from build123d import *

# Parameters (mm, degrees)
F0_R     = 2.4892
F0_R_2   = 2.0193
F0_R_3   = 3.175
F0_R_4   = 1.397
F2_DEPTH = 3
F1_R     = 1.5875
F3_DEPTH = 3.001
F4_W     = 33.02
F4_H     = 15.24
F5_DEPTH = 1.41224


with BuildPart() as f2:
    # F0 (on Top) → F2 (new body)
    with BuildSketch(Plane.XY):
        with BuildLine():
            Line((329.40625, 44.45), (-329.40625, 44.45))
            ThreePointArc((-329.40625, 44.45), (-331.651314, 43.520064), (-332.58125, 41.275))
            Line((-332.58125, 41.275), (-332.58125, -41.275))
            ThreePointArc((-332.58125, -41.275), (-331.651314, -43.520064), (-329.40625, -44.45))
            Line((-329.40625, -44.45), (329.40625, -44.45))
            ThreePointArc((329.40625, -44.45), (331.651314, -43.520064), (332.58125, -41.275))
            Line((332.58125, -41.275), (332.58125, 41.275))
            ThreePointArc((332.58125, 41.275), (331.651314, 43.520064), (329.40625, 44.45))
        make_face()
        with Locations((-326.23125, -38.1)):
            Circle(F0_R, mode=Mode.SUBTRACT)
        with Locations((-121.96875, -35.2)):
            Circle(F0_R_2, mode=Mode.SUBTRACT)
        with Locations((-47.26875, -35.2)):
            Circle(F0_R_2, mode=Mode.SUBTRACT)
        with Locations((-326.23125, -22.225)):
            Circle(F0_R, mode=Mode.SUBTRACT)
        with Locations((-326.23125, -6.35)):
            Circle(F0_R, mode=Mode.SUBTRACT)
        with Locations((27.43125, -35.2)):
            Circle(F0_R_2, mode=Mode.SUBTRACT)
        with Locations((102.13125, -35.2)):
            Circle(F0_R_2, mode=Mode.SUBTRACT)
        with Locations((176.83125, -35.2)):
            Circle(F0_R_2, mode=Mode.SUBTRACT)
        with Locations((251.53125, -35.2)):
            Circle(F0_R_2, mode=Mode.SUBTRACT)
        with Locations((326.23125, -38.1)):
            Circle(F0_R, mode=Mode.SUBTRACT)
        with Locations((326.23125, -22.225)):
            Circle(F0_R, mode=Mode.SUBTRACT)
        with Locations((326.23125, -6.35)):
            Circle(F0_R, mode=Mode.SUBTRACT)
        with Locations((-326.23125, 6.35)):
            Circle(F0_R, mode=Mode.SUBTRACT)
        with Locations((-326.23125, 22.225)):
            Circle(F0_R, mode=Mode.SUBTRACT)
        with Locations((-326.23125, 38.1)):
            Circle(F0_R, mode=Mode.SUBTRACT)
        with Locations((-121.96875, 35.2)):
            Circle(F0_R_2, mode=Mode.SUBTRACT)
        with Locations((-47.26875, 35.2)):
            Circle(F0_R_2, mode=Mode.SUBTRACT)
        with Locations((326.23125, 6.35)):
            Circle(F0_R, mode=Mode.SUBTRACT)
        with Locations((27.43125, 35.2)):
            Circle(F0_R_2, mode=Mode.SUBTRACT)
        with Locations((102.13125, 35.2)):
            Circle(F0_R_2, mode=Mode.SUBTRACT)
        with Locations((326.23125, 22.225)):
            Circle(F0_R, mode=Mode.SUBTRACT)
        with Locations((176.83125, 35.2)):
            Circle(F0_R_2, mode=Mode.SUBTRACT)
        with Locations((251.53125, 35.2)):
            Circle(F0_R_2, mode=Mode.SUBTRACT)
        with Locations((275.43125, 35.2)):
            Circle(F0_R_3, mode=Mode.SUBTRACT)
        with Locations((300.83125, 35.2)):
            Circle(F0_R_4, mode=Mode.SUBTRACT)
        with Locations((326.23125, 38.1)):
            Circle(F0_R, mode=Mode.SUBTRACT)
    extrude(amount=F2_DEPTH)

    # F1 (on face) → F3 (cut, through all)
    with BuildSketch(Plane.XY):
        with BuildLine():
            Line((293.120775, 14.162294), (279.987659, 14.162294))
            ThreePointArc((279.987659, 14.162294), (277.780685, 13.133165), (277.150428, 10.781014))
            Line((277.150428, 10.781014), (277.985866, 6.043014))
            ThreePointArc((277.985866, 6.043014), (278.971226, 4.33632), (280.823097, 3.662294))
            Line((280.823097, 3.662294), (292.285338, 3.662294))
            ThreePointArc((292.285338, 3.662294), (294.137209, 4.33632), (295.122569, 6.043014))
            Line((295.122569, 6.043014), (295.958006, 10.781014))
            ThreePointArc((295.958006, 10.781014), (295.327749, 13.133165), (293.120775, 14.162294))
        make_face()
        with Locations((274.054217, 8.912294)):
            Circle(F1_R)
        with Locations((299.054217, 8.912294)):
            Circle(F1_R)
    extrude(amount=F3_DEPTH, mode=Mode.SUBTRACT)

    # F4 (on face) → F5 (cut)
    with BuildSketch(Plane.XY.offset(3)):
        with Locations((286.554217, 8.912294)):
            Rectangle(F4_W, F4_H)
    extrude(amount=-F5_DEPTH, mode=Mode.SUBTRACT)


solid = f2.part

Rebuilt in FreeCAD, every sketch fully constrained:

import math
import FreeCAD as App
import Part
import Sketcher
from FreeCAD import Vector
Q = App.Units.Quantity


def add_polygon(sketch, points):
    """Adds a closed chain of lines whose ends are joined by coincident constraints."""
    first, n = sketch.GeometryCount, len(points)
    for a, b in zip(points, points[1:] + points[:1]):
        sketch.addGeometry(Part.LineSegment(App.Vector(*a, 0), App.Vector(*b, 0)), False)
    for i in range(n):
        sketch.addConstraint(Sketcher.Constraint("Coincident", first + i, 2, first + (i + 1) % n, 1))

doc = App.newDocument("Part")
params = doc.addObject("Spreadsheet::Sheet", "Params")
for row, (alias, value) in enumerate([
    ("sketch1_diameter", "0.25 in"),
    ("sketch1_diameter2", "0.11 in"),
    ("sketch1_diameter3", "0.196 in"),
    ("sketch1_diameter4", "0.159 in"),
    ("sketch1_height", "3.25 in"),
    ("pad1_length", "3 mm"),
    ("sketch2_diameter", "0.125 in"),
    ("sketch3_width", "1.3 in"),
    ("sketch3_height", "0.6 in"),
    ("pocket2_length", "0.0556 in"),
], start=1):
    params.set(f"A{row}", alias)
    params.set(f"B{row}", "=" + value)
    params.setAlias(f"B{row}", alias)

body = doc.addObject("PartDesign::Body", "Body")

# Sketch on XY plane
sketch1 = body.newObject("Sketcher::SketchObject", "Sketch")
sketch1.AttachmentSupport = (doc.getObject("XY_Plane"), [""])
sketch1.MapMode = "FlatFace"
sketch1.addGeometry([
    Part.LineSegment(Vector(329.4, 44.5, 0), Vector(-329.4, 44.5, 0)),  # 0
    Part.ArcOfCircle(Part.Circle(Vector(-329.4, 41.3, 0), Vector(0, 0, 1), 3.2), math.radians(90), math.radians(180)),  # 1
    Part.LineSegment(Vector(-332.6, 41.3, 0), Vector(-332.6, -41.3, 0)),  # 2
    Part.ArcOfCircle(Part.Circle(Vector(-329.4, -41.3, 0), Vector(0, 0, 1), 3.2), math.radians(-180), math.radians(-90)),  # 3
    Part.LineSegment(Vector(-329.4, -44.5, 0), Vector(329.4, -44.5, 0)),  # 4
    Part.ArcOfCircle(Part.Circle(Vector(329.4, -41.3, 0), Vector(0, 0, 1), 3.2), math.radians(-90), math.radians(0)),  # 5
    Part.LineSegment(Vector(332.6, -41.3, 0), Vector(332.6, 41.3, 0)),  # 6
    Part.ArcOfCircle(Part.Circle(Vector(329.4, 41.3, 0), Vector(0, 0, 1), 3.2), math.radians(0), math.radians(90)),  # 7
    Part.Circle(Vector(-326.2, -38.1, 0), Vector(0, 0, 1), 2.5),  # 8
    Part.Circle(Vector(-326.2, -22.2, 0), Vector(0, 0, 1), 2.5),  # 9
    Part.Circle(Vector(-122, -35.2, 0), Vector(0, 0, 1), 2),  # 10
    Part.Circle(Vector(-47.3, -35.2, 0), Vector(0, 0, 1), 2),  # 11
    Part.Circle(Vector(-326.2, -6.3, 0), Vector(0, 0, 1), 2.5),  # 12
    Part.Circle(Vector(27.4, -35.2, 0), Vector(0, 0, 1), 2),  # 13
    Part.Circle(Vector(102.1, -35.2, 0), Vector(0, 0, 1), 2),  # 14
    Part.Circle(Vector(176.8, -35.2, 0), Vector(0, 0, 1), 2),  # 15
    Part.Circle(Vector(326.2, -38.1, 0), Vector(0, 0, 1), 2.5),  # 16
    Part.Circle(Vector(251.5, -35.2, 0), Vector(0, 0, 1), 2),  # 17
    Part.Circle(Vector(326.2, -22.2, 0), Vector(0, 0, 1), 2.5),  # 18
    Part.Circle(Vector(326.2, -6.3, 0), Vector(0, 0, 1), 2.5),  # 19
    Part.Circle(Vector(-326.2, 6.3, 0), Vector(0, 0, 1), 2.5),  # 20
    Part.Circle(Vector(-326.2, 22.2, 0), Vector(0, 0, 1), 2.5),  # 21
    Part.Circle(Vector(-326.2, 38.1, 0), Vector(0, 0, 1), 2.5),  # 22
    Part.Circle(Vector(-122, 35.2, 0), Vector(0, 0, 1), 2),  # 23
    Part.Circle(Vector(-47.3, 35.2, 0), Vector(0, 0, 1), 2),  # 24
    Part.Circle(Vector(326.2, 6.3, 0), Vector(0, 0, 1), 2.5),  # 25
    Part.Circle(Vector(27.4, 35.2, 0), Vector(0, 0, 1), 2),  # 26
    Part.Circle(Vector(102.1, 35.2, 0), Vector(0, 0, 1), 2),  # 27
    Part.Circle(Vector(326.2, 22.2, 0), Vector(0, 0, 1), 2.5),  # 28
    Part.Circle(Vector(176.8, 35.2, 0), Vector(0, 0, 1), 2),  # 29
    Part.Circle(Vector(251.5, 35.2, 0), Vector(0, 0, 1), 2),  # 30
    Part.Circle(Vector(275.4, 35.2, 0), Vector(0, 0, 1), 3.2),  # 31
    Part.Circle(Vector(300.8, 35.2, 0), Vector(0, 0, 1), 1.4),  # 32
    Part.Circle(Vector(326.2, 38.1, 0), Vector(0, 0, 1), 2.5),  # 33
], False)
sketch1.addConstraint([
    Sketcher.Constraint("Tangent", 0, 2, 1, 1),
    Sketcher.Constraint("Tangent", 1, 2, 2, 1),
    Sketcher.Constraint("Tangent", 2, 2, 3, 1),
    Sketcher.Constraint("Tangent", 3, 2, 4, 1),
    Sketcher.Constraint("Tangent", 4, 2, 5, 1),
    Sketcher.Constraint("Tangent", 5, 2, 6, 1),
    Sketcher.Constraint("Tangent", 6, 2, 7, 1),
    Sketcher.Constraint("Tangent", 7, 2, 0, 1),
    Sketcher.Constraint("Horizontal", 0),
    Sketcher.Constraint("Vertical", 2),
    Sketcher.Constraint("Horizontal", 4),
    Sketcher.Constraint("Vertical", 6),
    Sketcher.Constraint("Equal", 1, 3),
    Sketcher.Constraint("Equal", 3, 5),
    Sketcher.Constraint("Equal", 5, 7),
    Sketcher.Constraint("Equal", 8, 9),
    Sketcher.Constraint("Equal", 10, 11),
    Sketcher.Constraint("Equal", 9, 12),
    Sketcher.Constraint("Equal", 11, 13),
    Sketcher.Constraint("Equal", 13, 14),
    Sketcher.Constraint("Equal", 14, 15),
    Sketcher.Constraint("Equal", 12, 16),
    Sketcher.Constraint("Equal", 15, 17),
    Sketcher.Constraint("Equal", 16, 18),
    Sketcher.Constraint("Equal", 18, 19),
    Sketcher.Constraint("Equal", 19, 20),
    Sketcher.Constraint("Equal", 20, 21),
    Sketcher.Constraint("Equal", 21, 22),
    Sketcher.Constraint("Equal", 17, 23),
    Sketcher.Constraint("Equal", 23, 24),
    Sketcher.Constraint("Equal", 22, 25),
    Sketcher.Constraint("Equal", 24, 26),
    Sketcher.Constraint("Equal", 26, 27),
    Sketcher.Constraint("Equal", 25, 28),
    Sketcher.Constraint("Equal", 27, 29),
    Sketcher.Constraint("Equal", 29, 30),
    Sketcher.Constraint("Equal", 7, 31),
    Sketcher.Constraint("Equal", 28, 33),
    Sketcher.Constraint("Symmetric", 1, 3, 5, 3, -1, 1),
    Sketcher.Constraint("Symmetric", 19, 3, 20, 3, -1, 1),
    Sketcher.Constraint("Symmetric", 18, 3, 21, 3, -1, 1),
    Sketcher.Constraint("Symmetric", 16, 3, 22, 3, -1, 1),
    Sketcher.Constraint("Symmetric", 12, 3, 25, 3, -1, 1),
    Sketcher.Constraint("Symmetric", 9, 3, 28, 3, -1, 1),
    Sketcher.Constraint("Symmetric", 8, 3, 33, 3, -1, 1),
    Sketcher.Constraint("Symmetric", 8, 3, 16, 3, -2),
    Sketcher.Constraint("Symmetric", 9, 3, 18, 3, -2),
    Sketcher.Constraint("Symmetric", 12, 3, 19, 3, -2),
    Sketcher.Constraint("Symmetric", 10, 3, 23, 3, -1),
    Sketcher.Constraint("Symmetric", 11, 3, 24, 3, -1),
    Sketcher.Constraint("Symmetric", 13, 3, 26, 3, -1),
    Sketcher.Constraint("Symmetric", 14, 3, 27, 3, -1),
    Sketcher.Constraint("Symmetric", 15, 3, 29, 3, -1),
    Sketcher.Constraint("Symmetric", 17, 3, 30, 3, -1),
    Sketcher.Constraint("Horizontal", 10, 3, 11, 3),
    Sketcher.Constraint("Horizontal", 11, 3, 13, 3),
    Sketcher.Constraint("Horizontal", 13, 3, 14, 3),
    Sketcher.Constraint("Horizontal", 14, 3, 15, 3),
    Sketcher.Constraint("Horizontal", 15, 3, 17, 3),
    Sketcher.Constraint("Horizontal", 30, 3, 31, 3),
    Sketcher.Constraint("Horizontal", 31, 3, 32, 3),
    Sketcher.Constraint("Vertical", 8, 3, 9, 3),
    Sketcher.Constraint("Vertical", 9, 3, 12, 3),
    Sketcher.Constraint("Diameter", 31, Q("0.25 in")),
    Sketcher.Constraint("Diameter", 32, Q("0.11 in")),
    Sketcher.Constraint("Diameter", 8, Q("0.196 in")),
    Sketcher.Constraint("Diameter", 10, Q("0.159 in")),
    Sketcher.Constraint("DistanceX", 31, 3, 28, 3, Q("2 in")),
    Sketcher.Constraint("DistanceX", 31, 3, 32, 3, Q("1 in")),
    Sketcher.Constraint("DistanceY", 12, 3, 0, 2, Q("2 in")),
    Sketcher.Constraint("DistanceY", 2, 2, 2, 1, Q("3.25 in")),
    Sketcher.Constraint("DistanceY", 8, 3, -1, 1, Q("1.5 in")),
    Sketcher.Constraint("DistanceY", 9, 3, 1, 3, Q("2.5 in")),
    Sketcher.Constraint("DistanceX", 0, 2, 0, 1, Q("25.9375 in")),
    Sketcher.Constraint("DistanceX", 1, 2, 22, 3, Q("0.25 in")),
    Sketcher.Constraint("DistanceY", 10, 3, -1, 1, 35.2),
    Sketcher.Constraint("DistanceX", 8, 3, 10, 3, 204.2625),
    Sketcher.Constraint("DistanceX", 10, 3, 11, 3, 74.7),
    Sketcher.Constraint("DistanceX", 11, 3, 13, 3, 74.7),
    Sketcher.Constraint("DistanceX", 13, 3, 14, 3, 74.7),
    Sketcher.Constraint("DistanceX", 14, 3, 15, 3, 74.7),
    Sketcher.Constraint("DistanceX", 15, 3, 17, 3, 74.7),
])
sketch1.setExpression("Constraints[63]", "Params.sketch1_diameter")
sketch1.setExpression("Constraints[64]", "Params.sketch1_diameter2")
sketch1.setExpression("Constraints[65]", "Params.sketch1_diameter3")
sketch1.setExpression("Constraints[66]", "Params.sketch1_diameter4")
sketch1.setExpression("Constraints[70]", "Params.sketch1_height")
pad1 = body.newObject("PartDesign::Pad", "Pad")
pad1.Profile = sketch1
pad1.setExpression("Length", "Params.pad1_length")

# Sketch on XY plane
sketch2 = body.newObject("Sketcher::SketchObject", "Sketch001")
sketch2.AttachmentSupport = (doc.getObject("XY_Plane"), [""])
sketch2.MapMode = "FlatFace"
sketch2.addGeometry([
    Part.LineSegment(Vector(293.1, 14.2, 0), Vector(280, 14.2, 0)),  # 0
    Part.ArcOfCircle(Part.Circle(Vector(280, 11.3, 0), Vector(0, 0, 1), 2.9), math.radians(90), math.radians(190)),  # 1
    Part.LineSegment(Vector(277.2, 10.8, 0), Vector(278, 6, 0)),  # 2
    Part.ArcOfCircle(Part.Circle(Vector(280.8, 6.5, 0), Vector(0, 0, 1), 2.9), math.radians(-170), math.radians(-90)),  # 3
    Part.LineSegment(Vector(280.8, 3.7, 0), Vector(292.3, 3.7, 0)),  # 4
    Part.ArcOfCircle(Part.Circle(Vector(292.3, 6.5, 0), Vector(0, 0, 1), 2.9), math.radians(-90), math.radians(-10)),  # 5
    Part.LineSegment(Vector(295.1, 6, 0), Vector(296, 10.8, 0)),  # 6
    Part.ArcOfCircle(Part.Circle(Vector(293.1, 11.3, 0), Vector(0, 0, 1), 2.9), math.radians(-10), math.radians(90)),  # 7
    Part.Circle(Vector(274.1, 8.9, 0), Vector(0, 0, 1), 1.6),  # 8
    Part.Circle(Vector(299.1, 8.9, 0), Vector(0, 0, 1), 1.6),  # 9
], False)
sketch2.addConstraint([
    Sketcher.Constraint("Tangent", 0, 2, 1, 1),
    Sketcher.Constraint("Tangent", 1, 2, 2, 1),
    Sketcher.Constraint("Tangent", 2, 2, 3, 1),
    Sketcher.Constraint("Tangent", 3, 2, 4, 1),
    Sketcher.Constraint("Tangent", 4, 2, 5, 1),
    Sketcher.Constraint("Tangent", 5, 2, 6, 1),
    Sketcher.Constraint("Tangent", 6, 2, 7, 1),
    Sketcher.Constraint("Tangent", 7, 2, 0, 1),
    Sketcher.Constraint("Horizontal", 0),
    Sketcher.Constraint("Horizontal", 4),
    Sketcher.Constraint("Equal", 1, 3),
    Sketcher.Constraint("Equal", 3, 5),
    Sketcher.Constraint("Equal", 5, 7),
    Sketcher.Constraint("Equal", 8, 9),
    Sketcher.Constraint("Horizontal", 8, 3, 9, 3),
    Sketcher.Constraint("Horizontal", 2, 2, 5, 2),
    Sketcher.Constraint("Diameter", 8, Q("0.125 in")),
    Sketcher.Constraint("Angle", 2, Q("-79.999991 deg")),
    Sketcher.Constraint("Radius", 1, 2.881),
    Sketcher.Constraint("DistanceX", 8, 3, 1, 3, Q("0.2336001 in")),
    Sketcher.Constraint("DistanceX", 7, 3, 9, 3, Q("0.2336001 in")),
    Sketcher.Constraint("DistanceX", 4, 1, 4, 2, 11.462241),
    Sketcher.Constraint("DistanceY", 3, 3, 1, 3, 4.738),
    Sketcher.Constraint("DistanceY", 8, 3, 1, 3, 2.369),
    Sketcher.Constraint("DistanceX", -1, 1, 1, 3, 279.987659),
    Sketcher.Constraint("DistanceY", -1, 1, 1, 3, 11.281294),
])
sketch2.setExpression("Constraints[16]", "Params.sketch2_diameter")
pocket1 = body.newObject("PartDesign::Pocket", "Pocket")
pocket1.Profile = sketch2
pocket1.Type = "ThroughAll"
pocket1.Reversed = True

# Sketch on XY plane
sketch3 = body.newObject("Sketcher::SketchObject", "Sketch002")
sketch3.AttachmentSupport = (doc.getObject("XY_Plane"), [""])
sketch3.MapMode = "FlatFace"
sketch3.AttachmentOffset = App.Placement(Vector(0, 0, 3), App.Rotation())
add_polygon(sketch3, [(270, 17), (270, 1), (303, 1), (303, 17)])  # lines 0-3
sketch3.addConstraint([
    Sketcher.Constraint("Vertical", 0),
    Sketcher.Constraint("Horizontal", 1),
    Sketcher.Constraint("Vertical", 2),
    Sketcher.Constraint("Horizontal", 3),
    Sketcher.Constraint("DistanceX", 1, 1, 1, 2, Q("1.3 in")),
    Sketcher.Constraint("DistanceY", 0, 2, 0, 1, Q("0.6 in")),
    Sketcher.Constraint("DistanceX", -1, 1, 0, 2, 270.044217),
    Sketcher.Constraint("DistanceY", -1, 1, 0, 2, 1.292294),
])
sketch3.setExpression("Constraints[8]", "Params.sketch3_width")
sketch3.setExpression("Constraints[9]", "Params.sketch3_height")
pocket2 = body.newObject("PartDesign::Pocket", "Pocket001")
pocket2.Profile = sketch3
pocket2.setExpression("Length", "Params.pocket2_length")

doc.recompute()
